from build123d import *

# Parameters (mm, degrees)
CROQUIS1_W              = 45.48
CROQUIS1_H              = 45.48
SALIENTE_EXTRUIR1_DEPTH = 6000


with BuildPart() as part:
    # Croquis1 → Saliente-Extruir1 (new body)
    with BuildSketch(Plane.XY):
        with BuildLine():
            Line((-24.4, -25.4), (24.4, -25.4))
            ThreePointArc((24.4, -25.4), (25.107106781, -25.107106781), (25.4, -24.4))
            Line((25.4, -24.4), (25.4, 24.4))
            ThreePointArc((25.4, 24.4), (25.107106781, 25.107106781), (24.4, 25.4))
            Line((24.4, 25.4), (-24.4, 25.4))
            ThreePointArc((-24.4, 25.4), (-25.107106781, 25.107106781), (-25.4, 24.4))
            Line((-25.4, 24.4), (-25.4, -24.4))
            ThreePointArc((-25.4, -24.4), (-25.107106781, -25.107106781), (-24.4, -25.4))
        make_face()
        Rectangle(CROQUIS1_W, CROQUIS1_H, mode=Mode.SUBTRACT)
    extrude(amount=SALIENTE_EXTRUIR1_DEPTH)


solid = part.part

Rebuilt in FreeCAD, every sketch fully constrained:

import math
import FreeCAD as App
import Part
import Sketcher
Q = App.Units.Quantity

doc = App.newDocument("Part")
body = doc.addObject("PartDesign::Body", "Body")

sketch1 = body.newObject("Sketcher::SketchObject", "Sketch")
sketch1.AttachmentSupport = (doc.getObject("XY_Plane"), [""])
sketch1.MapMode = "FlatFace"
sketch1.addGeometry([
    Part.LineSegment(App.Vector(-24.4, -25.4, 0), App.Vector(24.4, -25.4, 0)),
    Part.ArcOfCircle(Part.Circle(App.Vector(24.4, -24.4, 0), App.Vector(0, 0, 1), 1), math.radians(-90), math.radians(0)),
    Part.LineSegment(App.Vector(25.4, -24.4, 0), App.Vector(25.4, 24.4, 0)),
    Part.ArcOfCircle(Part.Circle(App.Vector(24.4, 24.4, 0), App.Vector(0, 0, 1), 1), math.radians(0), math.radians(90)),
    Part.LineSegment(App.Vector(24.4, 25.4, 0), App.Vector(-24.4, 25.4, 0)),
    Part.ArcOfCircle(Part.Circle(App.Vector(-24.4, 24.4, 0), App.Vector(0, 0, 1), 1), math.radians(90), math.radians(180)),
    Part.LineSegment(App.Vector(-25.4, 24.4, 0), App.Vector(-25.4, -24.4, 0)),
    Part.ArcOfCircle(Part.Circle(App.Vector(-24.4, -24.4, 0), App.Vector(0, 0, 1), 1), math.radians(-180), math.radians(-90)),
    Part.LineSegment(App.Vector(22.7, -22.7, 0), App.Vector(-22.7, -22.7, 0)),
    Part.LineSegment(App.Vector(-22.7, -22.7, 0), App.Vector(-22.7, 22.7, 0)),
    Part.LineSegment(App.Vector(-22.7, 22.7, 0), App.Vector(22.7, 22.7, 0)),
    Part.LineSegment(App.Vector(22.7, 22.7, 0), App.Vector(22.7, -22.7, 0)),
], False)
sketch1.addConstraint([
    Sketcher.Constraint("Tangent", 0, 2, 1, 1),
    Sketcher.Constraint("Tangent", 1, 2, 2, 1),
    Sketcher.Constraint("Tangent", 2, 2, 3, 1),
    Sketcher.Constraint("Tangent", 3, 2, 4, 1),
    Sketcher.Constraint("Tangent", 4, 2, 5, 1),
    Sketcher.Constraint("Tangent", 5, 2, 6, 1),
    Sketcher.Constraint("Tangent", 6, 2, 7, 1),
    Sketcher.Constraint("Tangent", 7, 2, 0, 1),
    Sketcher.Constraint("Coincident", 8, 2, 9, 1),
    Sketcher.Constraint("Coincident", 9, 2, 10, 1),
    Sketcher.Constraint("Coincident", 10, 2, 11, 1),
    Sketcher.Constraint("Coincident", 11, 2, 8, 1),
    Sketcher.Constraint("Horizontal", 0),
    Sketcher.Constraint("Vertical", 2),
    Sketcher.Constraint("Horizontal", 4),
    Sketcher.Constraint("Vertical", 6),
    Sketcher.Constraint("Horizontal", 8),
    Sketcher.Constraint("Vertical", 9),
    Sketcher.Constraint("Horizontal", 10),
    Sketcher.Constraint("Vertical", 11),
    Sketcher.Constraint("Equal", 1, 3),
    Sketcher.Constraint("Equal", 3, 5),
    Sketcher.Constraint("Equal", 5, 7),
    Sketcher.Constraint("Symmetric", 1, 3, 5, 3, -1, 1),
    Sketcher.Constraint("Symmetric", 8, 2, 10, 2, -1, 1),
    Sketcher.Constraint("Equal", 4, 2),
    Sketcher.Constraint("Equal", 10, 9),
    Sketcher.Constraint("Radius", 1, Q("1 mm")),
    Sketcher.Constraint("DistanceX", 0, 1, 0, 2, Q("48.8 mm")),
    Sketcher.Constraint("DistanceX", 8, 2, 8, 1, Q("45.48 mm")),
])
pad1 = body.newObject("PartDesign::Pad", "Pad")
pad1.Profile = sketch1
pad1.Length = 6000

doc.recompute()
